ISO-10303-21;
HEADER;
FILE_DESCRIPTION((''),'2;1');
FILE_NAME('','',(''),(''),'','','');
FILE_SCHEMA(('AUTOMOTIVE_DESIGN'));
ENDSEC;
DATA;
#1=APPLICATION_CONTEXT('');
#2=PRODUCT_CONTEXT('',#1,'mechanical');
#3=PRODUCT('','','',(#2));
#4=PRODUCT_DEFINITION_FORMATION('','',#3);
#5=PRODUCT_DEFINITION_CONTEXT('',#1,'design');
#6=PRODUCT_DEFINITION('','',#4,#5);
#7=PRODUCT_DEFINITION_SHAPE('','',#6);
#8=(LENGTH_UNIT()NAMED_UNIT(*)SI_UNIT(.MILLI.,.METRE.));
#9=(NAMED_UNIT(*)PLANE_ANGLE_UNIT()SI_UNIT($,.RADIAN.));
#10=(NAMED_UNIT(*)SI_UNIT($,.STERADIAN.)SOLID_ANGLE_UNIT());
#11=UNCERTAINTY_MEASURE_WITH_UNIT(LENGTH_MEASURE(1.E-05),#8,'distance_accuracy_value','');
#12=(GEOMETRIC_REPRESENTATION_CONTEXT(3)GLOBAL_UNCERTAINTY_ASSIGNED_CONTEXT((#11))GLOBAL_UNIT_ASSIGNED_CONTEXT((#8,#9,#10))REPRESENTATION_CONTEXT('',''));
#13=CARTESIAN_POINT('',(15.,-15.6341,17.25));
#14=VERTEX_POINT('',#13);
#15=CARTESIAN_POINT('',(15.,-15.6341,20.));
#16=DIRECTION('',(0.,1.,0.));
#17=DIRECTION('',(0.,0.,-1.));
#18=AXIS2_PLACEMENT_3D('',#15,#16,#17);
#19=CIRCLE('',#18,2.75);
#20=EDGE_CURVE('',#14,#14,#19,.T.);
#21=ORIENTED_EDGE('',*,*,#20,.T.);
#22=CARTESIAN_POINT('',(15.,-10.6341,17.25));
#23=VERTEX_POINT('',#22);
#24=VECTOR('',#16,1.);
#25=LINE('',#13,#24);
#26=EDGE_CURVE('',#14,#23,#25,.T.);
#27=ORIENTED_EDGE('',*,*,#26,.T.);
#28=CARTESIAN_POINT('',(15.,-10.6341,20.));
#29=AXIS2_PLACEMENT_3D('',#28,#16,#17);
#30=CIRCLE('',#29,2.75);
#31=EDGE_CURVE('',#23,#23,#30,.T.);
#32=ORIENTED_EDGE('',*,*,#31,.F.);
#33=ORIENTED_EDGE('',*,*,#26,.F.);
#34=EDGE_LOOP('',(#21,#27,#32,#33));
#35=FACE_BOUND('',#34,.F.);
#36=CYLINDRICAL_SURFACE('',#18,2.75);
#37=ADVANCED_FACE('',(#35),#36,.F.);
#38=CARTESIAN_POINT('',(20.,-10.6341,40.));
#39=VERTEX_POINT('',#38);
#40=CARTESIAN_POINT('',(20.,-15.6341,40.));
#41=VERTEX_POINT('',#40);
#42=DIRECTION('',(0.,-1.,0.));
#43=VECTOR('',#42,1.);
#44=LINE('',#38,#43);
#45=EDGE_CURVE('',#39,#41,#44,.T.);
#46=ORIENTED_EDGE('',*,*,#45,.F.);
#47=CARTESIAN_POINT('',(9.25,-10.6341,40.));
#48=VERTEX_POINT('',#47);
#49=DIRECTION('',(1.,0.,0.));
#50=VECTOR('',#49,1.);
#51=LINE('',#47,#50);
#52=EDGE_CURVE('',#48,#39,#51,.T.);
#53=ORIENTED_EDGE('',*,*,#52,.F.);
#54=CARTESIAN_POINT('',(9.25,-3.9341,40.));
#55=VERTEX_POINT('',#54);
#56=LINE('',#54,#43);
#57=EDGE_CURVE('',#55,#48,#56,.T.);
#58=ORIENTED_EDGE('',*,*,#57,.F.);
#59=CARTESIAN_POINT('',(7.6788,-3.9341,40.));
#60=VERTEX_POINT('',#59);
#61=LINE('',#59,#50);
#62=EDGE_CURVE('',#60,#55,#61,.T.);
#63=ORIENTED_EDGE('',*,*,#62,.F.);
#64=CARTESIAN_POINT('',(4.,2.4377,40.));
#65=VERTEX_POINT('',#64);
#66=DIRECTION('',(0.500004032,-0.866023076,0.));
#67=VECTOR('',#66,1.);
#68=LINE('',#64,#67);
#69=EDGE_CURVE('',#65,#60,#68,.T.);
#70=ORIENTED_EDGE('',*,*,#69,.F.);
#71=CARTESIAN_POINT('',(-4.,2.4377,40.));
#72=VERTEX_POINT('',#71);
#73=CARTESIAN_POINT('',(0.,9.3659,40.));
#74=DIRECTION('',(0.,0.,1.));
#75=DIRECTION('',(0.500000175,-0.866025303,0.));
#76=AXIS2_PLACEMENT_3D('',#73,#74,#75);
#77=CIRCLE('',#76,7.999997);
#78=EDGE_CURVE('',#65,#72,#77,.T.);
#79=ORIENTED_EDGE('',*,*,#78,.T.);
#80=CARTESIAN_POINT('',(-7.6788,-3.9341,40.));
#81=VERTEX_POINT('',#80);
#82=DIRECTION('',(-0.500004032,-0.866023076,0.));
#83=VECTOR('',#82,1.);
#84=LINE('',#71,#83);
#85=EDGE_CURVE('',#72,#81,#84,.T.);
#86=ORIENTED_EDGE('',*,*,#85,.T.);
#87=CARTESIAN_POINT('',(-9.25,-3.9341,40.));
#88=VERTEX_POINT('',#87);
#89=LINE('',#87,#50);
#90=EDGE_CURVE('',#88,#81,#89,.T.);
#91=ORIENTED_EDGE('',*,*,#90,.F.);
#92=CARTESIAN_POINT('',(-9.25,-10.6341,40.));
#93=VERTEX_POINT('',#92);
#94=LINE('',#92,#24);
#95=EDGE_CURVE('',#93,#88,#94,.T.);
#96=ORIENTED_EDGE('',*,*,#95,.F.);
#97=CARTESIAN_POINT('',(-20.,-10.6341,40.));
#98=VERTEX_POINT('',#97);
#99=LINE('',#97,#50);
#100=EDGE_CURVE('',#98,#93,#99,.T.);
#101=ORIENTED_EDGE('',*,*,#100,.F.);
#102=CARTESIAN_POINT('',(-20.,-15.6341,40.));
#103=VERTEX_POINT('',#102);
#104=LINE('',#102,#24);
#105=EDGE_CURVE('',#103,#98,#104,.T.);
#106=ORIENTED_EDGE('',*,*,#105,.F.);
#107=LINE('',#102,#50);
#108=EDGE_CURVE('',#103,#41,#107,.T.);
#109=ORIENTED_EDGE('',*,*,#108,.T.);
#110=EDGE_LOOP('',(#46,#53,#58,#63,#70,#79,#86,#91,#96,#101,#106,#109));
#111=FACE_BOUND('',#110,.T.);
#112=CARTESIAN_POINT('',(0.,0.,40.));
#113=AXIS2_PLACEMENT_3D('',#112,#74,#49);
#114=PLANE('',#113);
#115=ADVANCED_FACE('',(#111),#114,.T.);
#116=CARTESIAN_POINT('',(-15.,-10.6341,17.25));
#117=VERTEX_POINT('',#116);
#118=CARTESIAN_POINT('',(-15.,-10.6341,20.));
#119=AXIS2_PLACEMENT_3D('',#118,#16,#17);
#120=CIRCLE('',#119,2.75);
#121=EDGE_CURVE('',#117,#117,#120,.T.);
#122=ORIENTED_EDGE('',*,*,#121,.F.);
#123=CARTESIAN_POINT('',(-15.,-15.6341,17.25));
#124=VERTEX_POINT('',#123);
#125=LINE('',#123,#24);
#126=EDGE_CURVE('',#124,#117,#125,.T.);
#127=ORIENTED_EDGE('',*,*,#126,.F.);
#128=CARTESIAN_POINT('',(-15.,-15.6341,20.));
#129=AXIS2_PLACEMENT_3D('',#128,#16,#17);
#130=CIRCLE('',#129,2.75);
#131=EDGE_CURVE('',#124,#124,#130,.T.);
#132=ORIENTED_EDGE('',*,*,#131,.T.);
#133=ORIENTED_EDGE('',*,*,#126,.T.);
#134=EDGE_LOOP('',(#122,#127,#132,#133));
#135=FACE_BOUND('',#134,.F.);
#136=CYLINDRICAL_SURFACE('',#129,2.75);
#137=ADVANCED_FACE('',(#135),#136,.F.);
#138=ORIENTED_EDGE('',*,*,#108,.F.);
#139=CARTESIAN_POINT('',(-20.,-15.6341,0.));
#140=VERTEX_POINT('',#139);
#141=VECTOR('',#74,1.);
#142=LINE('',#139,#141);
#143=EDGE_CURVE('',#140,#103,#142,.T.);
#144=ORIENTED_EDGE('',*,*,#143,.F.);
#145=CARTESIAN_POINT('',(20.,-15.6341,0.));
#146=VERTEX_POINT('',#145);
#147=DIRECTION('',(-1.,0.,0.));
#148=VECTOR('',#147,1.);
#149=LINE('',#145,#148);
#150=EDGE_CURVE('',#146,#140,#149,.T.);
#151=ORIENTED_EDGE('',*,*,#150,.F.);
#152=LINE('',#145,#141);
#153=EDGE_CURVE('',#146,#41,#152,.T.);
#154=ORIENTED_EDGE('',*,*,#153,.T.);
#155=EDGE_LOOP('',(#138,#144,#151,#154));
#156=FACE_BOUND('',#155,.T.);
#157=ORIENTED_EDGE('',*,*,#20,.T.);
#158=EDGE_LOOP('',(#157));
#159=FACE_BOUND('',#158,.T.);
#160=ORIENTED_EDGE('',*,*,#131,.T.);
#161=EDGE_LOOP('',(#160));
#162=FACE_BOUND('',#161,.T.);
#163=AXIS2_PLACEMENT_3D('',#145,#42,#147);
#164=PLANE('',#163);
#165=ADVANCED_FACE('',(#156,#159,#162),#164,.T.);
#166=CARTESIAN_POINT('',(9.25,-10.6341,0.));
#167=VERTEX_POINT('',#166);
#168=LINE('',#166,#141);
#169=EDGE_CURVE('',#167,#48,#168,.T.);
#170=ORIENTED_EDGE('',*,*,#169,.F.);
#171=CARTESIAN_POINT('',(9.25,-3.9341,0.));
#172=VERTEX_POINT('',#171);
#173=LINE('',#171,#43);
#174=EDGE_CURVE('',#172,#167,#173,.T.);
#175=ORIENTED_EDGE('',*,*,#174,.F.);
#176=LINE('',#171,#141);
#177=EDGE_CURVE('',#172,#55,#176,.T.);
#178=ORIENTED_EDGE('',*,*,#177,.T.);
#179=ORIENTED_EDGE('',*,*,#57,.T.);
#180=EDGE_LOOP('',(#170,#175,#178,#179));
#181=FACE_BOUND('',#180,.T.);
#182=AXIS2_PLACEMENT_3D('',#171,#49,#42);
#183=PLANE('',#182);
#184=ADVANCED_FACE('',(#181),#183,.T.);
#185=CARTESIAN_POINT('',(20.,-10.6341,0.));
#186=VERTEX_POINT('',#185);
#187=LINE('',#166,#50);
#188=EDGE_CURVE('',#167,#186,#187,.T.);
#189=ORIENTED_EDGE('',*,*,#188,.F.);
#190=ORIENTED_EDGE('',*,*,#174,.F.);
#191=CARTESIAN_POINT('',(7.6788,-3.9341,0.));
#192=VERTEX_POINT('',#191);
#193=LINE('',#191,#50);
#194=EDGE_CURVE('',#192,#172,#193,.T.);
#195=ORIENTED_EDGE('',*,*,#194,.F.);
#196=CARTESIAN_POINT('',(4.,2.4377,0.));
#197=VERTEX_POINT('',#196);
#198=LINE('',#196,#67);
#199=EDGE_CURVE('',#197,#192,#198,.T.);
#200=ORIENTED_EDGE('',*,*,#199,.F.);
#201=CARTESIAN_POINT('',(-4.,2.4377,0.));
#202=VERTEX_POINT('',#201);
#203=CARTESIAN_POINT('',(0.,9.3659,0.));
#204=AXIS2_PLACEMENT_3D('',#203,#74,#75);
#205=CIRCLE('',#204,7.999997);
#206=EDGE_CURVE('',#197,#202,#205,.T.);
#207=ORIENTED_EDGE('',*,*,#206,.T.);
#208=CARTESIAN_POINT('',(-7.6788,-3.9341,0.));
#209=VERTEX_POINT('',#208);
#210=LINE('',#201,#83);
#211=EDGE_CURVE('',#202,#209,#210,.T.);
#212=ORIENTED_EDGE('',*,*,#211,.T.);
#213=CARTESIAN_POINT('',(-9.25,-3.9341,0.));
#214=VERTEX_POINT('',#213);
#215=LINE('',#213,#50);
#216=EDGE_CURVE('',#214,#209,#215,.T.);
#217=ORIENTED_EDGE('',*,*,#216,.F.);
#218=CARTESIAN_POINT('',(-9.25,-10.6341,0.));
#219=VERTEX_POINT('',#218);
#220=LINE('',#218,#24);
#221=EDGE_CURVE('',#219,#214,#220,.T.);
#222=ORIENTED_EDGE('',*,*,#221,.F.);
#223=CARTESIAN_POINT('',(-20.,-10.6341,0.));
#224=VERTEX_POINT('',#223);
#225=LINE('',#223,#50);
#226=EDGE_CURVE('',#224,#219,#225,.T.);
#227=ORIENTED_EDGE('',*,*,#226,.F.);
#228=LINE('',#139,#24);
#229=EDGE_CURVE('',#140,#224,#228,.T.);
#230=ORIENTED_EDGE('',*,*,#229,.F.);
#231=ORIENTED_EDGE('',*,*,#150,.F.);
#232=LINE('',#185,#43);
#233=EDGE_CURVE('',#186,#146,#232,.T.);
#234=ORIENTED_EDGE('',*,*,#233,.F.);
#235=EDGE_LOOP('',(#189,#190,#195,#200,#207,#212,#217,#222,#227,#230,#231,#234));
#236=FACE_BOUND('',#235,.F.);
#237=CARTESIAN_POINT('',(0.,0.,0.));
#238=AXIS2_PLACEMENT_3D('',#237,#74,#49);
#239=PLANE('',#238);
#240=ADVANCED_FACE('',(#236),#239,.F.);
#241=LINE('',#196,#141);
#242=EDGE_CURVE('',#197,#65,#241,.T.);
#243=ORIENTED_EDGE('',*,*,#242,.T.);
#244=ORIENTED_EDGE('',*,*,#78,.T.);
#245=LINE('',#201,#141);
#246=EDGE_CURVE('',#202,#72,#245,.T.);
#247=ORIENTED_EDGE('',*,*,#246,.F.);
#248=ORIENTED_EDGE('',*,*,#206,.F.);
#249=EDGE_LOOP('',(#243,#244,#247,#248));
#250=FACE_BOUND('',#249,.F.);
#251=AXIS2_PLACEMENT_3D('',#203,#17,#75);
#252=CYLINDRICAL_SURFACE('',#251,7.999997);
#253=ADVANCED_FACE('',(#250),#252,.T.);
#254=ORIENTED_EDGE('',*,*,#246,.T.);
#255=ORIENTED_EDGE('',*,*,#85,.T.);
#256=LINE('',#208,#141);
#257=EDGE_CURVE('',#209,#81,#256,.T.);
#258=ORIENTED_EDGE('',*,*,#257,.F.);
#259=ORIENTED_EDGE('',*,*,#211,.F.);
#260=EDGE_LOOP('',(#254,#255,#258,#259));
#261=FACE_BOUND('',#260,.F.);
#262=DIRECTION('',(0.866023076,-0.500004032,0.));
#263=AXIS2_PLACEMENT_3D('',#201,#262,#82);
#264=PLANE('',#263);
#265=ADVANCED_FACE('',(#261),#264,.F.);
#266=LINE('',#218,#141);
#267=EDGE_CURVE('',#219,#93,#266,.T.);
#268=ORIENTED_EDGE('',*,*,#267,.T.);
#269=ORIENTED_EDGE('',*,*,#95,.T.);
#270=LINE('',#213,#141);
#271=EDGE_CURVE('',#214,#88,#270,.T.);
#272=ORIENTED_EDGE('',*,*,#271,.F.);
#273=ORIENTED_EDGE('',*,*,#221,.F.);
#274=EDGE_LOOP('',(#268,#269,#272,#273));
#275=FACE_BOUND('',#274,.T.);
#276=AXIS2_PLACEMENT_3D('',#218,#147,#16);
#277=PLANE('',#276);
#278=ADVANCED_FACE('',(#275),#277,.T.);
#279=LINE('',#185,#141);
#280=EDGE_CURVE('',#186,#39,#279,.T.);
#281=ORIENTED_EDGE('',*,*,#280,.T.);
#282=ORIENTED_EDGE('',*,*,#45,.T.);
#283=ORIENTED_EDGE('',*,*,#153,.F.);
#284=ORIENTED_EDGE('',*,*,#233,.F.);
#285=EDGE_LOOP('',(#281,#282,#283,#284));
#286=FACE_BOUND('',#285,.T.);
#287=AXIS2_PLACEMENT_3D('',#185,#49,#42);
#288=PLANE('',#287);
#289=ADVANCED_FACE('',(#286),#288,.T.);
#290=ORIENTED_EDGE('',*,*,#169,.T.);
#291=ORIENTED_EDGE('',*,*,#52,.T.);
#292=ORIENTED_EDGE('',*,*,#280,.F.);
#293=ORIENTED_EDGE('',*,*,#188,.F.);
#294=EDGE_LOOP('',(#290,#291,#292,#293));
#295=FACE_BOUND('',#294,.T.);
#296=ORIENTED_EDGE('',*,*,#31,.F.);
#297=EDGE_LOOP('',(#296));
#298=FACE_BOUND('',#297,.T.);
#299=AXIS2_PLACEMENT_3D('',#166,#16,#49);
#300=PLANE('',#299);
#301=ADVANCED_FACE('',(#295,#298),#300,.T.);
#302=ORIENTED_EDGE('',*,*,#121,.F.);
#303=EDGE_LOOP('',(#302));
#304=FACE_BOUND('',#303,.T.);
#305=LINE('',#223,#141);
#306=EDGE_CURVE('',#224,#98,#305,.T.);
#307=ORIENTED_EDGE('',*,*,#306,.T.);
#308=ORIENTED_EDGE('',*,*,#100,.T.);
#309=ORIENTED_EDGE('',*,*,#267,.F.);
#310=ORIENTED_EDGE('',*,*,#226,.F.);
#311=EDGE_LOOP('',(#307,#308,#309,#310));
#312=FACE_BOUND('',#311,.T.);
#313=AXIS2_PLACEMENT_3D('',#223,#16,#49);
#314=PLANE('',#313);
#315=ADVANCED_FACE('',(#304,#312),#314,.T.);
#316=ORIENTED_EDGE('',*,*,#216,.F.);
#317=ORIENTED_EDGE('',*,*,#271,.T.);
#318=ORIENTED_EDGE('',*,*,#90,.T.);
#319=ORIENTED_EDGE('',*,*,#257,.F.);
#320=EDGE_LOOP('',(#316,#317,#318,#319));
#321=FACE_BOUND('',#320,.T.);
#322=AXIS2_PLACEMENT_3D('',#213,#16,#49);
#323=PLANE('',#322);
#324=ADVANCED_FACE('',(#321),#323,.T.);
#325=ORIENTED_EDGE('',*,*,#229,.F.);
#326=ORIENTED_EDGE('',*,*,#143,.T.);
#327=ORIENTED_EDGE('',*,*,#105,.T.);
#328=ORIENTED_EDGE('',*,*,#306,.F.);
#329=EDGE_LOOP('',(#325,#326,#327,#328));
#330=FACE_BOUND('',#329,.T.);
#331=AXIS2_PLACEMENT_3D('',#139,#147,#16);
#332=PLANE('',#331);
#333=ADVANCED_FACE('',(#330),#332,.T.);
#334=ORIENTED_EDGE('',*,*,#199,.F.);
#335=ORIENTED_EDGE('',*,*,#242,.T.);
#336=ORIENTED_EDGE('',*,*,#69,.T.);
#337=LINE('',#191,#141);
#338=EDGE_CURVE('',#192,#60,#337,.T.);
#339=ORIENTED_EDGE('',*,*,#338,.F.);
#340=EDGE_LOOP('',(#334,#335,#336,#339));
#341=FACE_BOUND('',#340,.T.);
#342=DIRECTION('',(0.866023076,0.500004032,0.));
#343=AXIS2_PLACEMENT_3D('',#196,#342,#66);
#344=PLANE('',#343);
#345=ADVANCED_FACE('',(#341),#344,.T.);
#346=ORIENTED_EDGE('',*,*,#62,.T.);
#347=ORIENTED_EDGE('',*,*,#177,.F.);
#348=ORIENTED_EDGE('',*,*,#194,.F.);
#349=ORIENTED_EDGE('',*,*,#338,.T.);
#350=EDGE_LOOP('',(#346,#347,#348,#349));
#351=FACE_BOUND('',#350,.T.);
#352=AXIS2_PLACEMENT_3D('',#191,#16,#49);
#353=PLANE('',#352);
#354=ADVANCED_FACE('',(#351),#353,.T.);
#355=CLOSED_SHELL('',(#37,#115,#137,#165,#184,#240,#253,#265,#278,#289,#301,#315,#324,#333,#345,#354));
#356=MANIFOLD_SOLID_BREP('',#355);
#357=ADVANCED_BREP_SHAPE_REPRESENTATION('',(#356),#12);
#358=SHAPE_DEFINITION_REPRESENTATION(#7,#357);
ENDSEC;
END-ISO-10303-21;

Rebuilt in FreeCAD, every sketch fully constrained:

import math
import FreeCAD as App
import Part
import Sketcher
Q = App.Units.Quantity

doc = App.newDocument("Part")
body = doc.addObject("PartDesign::Body", "Body")

# Sketch on XY plane
sketch1 = body.newObject("Sketcher::SketchObject", "Sketch")
sketch1.AttachmentSupport = (doc.getObject("XY_Plane"), [""])
sketch1.MapMode = "FlatFace"
sketch1.addGeometry(Part.LineSegment(App.Vector(7.7, -3.9, 0), App.Vector(4, 2.4, 0)), False)
sketch1.addGeometry(Part.ArcOfCircle(Part.Circle(App.Vector(0, 9.4, 0), App.Vector(0, 0, 1), 8), math.radians(-60), math.radians(240)), False)
sketch1.addGeometry(Part.LineSegment(App.Vector(-4, 2.4, 0), App.Vector(-7.7, -3.9, 0)), False)
sketch1.addGeometry(Part.LineSegment(App.Vector(-7.7, -3.9, 0), App.Vector(-9.2, -3.9, 0)), False)
sketch1.addGeometry(Part.LineSegment(App.Vector(-9.2, -3.9, 0), App.Vector(-9.2, -10.6, 0)), False)
sketch1.addGeometry(Part.LineSegment(App.Vector(-9.2, -10.6, 0), App.Vector(-20, -10.6, 0)), False)
sketch1.addGeometry(Part.LineSegment(App.Vector(-20, -10.6, 0), App.Vector(-20, -15.6, 0)), False)
sketch1.addGeometry(Part.LineSegment(App.Vector(-20, -15.6, 0), App.Vector(20, -15.6, 0)), False)
sketch1.addGeometry(Part.LineSegment(App.Vector(20, -15.6, 0), App.Vector(20, -10.6, 0)), False)
sketch1.addGeometry(Part.LineSegment(App.Vector(20, -10.6, 0), App.Vector(9.2, -10.6, 0)), False)
sketch1.addGeometry(Part.LineSegment(App.Vector(9.2, -10.6, 0), App.Vector(9.2, -3.9, 0)), False)
sketch1.addGeometry(Part.LineSegment(App.Vector(9.2, -3.9, 0), App.Vector(7.7, -3.9, 0)), False)
sketch1.addConstraint(Sketcher.Constraint("Coincident", 0, 2, 1, 1))
sketch1.addConstraint(Sketcher.Constraint("Coincident", 1, 2, 2, 1))
sketch1.addConstraint(Sketcher.Constraint("Coincident", 2, 2, 3, 1))
sketch1.addConstraint(Sketcher.Constraint("Coincident", 3, 2, 4, 1))
sketch1.addConstraint(Sketcher.Constraint("Coincident", 4, 2, 5, 1))
sketch1.addConstraint(Sketcher.Constraint("Coincident", 5, 2, 6, 1))
sketch1.addConstraint(Sketcher.Constraint("Coincident", 6, 2, 7, 1))
sketch1.addConstraint(Sketcher.Constraint("Coincident", 7, 2, 8, 1))
sketch1.addConstraint(Sketcher.Constraint("Coincident", 8, 2, 9, 1))
sketch1.addConstraint(Sketcher.Constraint("Coincident", 9, 2, 10, 1))
sketch1.addConstraint(Sketcher.Constraint("Coincident", 10, 2, 11, 1))
sketch1.addConstraint(Sketcher.Constraint("Coincident", 11, 2, 0, 1))
sketch1.addConstraint(Sketcher.Constraint("Horizontal", 3))
sketch1.addConstraint(Sketcher.Constraint("Vertical", 4))
sketch1.addConstraint(Sketcher.Constraint("Horizontal", 5))
sketch1.addConstraint(Sketcher.Constraint("Vertical", 6))
sketch1.addConstraint(Sketcher.Constraint("Horizontal", 7))
sketch1.addConstraint(Sketcher.Constraint("Vertical", 8))
sketch1.addConstraint(Sketcher.Constraint("Horizontal", 9))
sketch1.addConstraint(Sketcher.Constraint("Vertical", 10))
sketch1.addConstraint(Sketcher.Constraint("Horizontal", 11))
sketch1.addConstraint(Sketcher.Constraint("Symmetric", 0, 2, 1, 2, -2))
sketch1.addConstraint(Sketcher.Constraint("Symmetric", 5, 2, 8, 2, -2))
sketch1.addConstraint(Sketcher.Constraint("Symmetric", 3, 2, 10, 2, -2))
sketch1.addConstraint(Sketcher.Constraint("Equal", 3, 11))
sketch1.addConstraint(Sketcher.Constraint("Radius", 1, 8.0))
sketch1.addConstraint(Sketcher.Constraint("DistanceX", 7, 1, 7, 2, 40.0))
sketch1.addConstraint(Sketcher.Constraint("DistanceY", 6, 2, 6, 1, 5.0))
sketch1.addConstraint(Sketcher.Constraint("DistanceX", 1, 2, 0, 2, 8.0))
sketch1.addConstraint(Sketcher.Constraint("DistanceY", 6, 2, 3, 2, 11.7))
sketch1.addConstraint(Sketcher.Constraint("DistanceX", 4, 2, 9, 2, 18.5))
sketch1.addConstraint(Sketcher.Constraint("Angle", 0, Q("120.0003 deg")))
sketch1.addConstraint(Sketcher.Constraint("DistanceY", 4, 2, 1, 3, 20.0))
sketch1.addConstraint(Sketcher.Constraint("DistanceY", -1, 1, 1, 3, 9.366))
pad1 = body.newObject("PartDesign::Pad", "Pad")
pad1.Profile = sketch1
pad1.Length = 40

# Sketch on XZ plane
sketch2 = body.newObject("Sketcher::SketchObject", "Sketch001")
sketch2.AttachmentSupport = (doc.getObject("XZ_Plane"), [""])
sketch2.MapMode = "FlatFace"
sketch2.AttachmentOffset = App.Placement(App.Vector(0, 0, 15.6341), App.Rotation())
sketch2.addGeometry(Part.Circle(App.Vector(-15, 20, 0), App.Vector(0, 0, 1), 2.8), False)
sketch2.addGeometry(Part.Circle(App.Vector(15, 20, 0), App.Vector(0, 0, 1), 2.8), False)
sketch2.addConstraint(Sketcher.Constraint("Equal", 0, 1))
sketch2.addConstraint(Sketcher.Constraint("Symmetric", 0, 3, 1, 3, -2))
sketch2.addConstraint(Sketcher.Constraint("Diameter", 0, 5.5))
sketch2.addConstraint(Sketcher.Constraint("DistanceX", 0, 3, -1, 1, 15.0))
sketch2.addConstraint(Sketcher.Constraint("DistanceY", -1, 1, 0, 3, 20.0))
doc.recompute()
hole = body.newObject("PartDesign::Hole", "Hole")
hole.Profile = sketch2
hole.ThreadType = "None"
hole.Diameter = 5.5
hole.DepthType = "Dimension"
hole.Depth = 8
hole.DrillPoint = "Angled"
hole.DrillPointAngle = 118

doc.recompute()
